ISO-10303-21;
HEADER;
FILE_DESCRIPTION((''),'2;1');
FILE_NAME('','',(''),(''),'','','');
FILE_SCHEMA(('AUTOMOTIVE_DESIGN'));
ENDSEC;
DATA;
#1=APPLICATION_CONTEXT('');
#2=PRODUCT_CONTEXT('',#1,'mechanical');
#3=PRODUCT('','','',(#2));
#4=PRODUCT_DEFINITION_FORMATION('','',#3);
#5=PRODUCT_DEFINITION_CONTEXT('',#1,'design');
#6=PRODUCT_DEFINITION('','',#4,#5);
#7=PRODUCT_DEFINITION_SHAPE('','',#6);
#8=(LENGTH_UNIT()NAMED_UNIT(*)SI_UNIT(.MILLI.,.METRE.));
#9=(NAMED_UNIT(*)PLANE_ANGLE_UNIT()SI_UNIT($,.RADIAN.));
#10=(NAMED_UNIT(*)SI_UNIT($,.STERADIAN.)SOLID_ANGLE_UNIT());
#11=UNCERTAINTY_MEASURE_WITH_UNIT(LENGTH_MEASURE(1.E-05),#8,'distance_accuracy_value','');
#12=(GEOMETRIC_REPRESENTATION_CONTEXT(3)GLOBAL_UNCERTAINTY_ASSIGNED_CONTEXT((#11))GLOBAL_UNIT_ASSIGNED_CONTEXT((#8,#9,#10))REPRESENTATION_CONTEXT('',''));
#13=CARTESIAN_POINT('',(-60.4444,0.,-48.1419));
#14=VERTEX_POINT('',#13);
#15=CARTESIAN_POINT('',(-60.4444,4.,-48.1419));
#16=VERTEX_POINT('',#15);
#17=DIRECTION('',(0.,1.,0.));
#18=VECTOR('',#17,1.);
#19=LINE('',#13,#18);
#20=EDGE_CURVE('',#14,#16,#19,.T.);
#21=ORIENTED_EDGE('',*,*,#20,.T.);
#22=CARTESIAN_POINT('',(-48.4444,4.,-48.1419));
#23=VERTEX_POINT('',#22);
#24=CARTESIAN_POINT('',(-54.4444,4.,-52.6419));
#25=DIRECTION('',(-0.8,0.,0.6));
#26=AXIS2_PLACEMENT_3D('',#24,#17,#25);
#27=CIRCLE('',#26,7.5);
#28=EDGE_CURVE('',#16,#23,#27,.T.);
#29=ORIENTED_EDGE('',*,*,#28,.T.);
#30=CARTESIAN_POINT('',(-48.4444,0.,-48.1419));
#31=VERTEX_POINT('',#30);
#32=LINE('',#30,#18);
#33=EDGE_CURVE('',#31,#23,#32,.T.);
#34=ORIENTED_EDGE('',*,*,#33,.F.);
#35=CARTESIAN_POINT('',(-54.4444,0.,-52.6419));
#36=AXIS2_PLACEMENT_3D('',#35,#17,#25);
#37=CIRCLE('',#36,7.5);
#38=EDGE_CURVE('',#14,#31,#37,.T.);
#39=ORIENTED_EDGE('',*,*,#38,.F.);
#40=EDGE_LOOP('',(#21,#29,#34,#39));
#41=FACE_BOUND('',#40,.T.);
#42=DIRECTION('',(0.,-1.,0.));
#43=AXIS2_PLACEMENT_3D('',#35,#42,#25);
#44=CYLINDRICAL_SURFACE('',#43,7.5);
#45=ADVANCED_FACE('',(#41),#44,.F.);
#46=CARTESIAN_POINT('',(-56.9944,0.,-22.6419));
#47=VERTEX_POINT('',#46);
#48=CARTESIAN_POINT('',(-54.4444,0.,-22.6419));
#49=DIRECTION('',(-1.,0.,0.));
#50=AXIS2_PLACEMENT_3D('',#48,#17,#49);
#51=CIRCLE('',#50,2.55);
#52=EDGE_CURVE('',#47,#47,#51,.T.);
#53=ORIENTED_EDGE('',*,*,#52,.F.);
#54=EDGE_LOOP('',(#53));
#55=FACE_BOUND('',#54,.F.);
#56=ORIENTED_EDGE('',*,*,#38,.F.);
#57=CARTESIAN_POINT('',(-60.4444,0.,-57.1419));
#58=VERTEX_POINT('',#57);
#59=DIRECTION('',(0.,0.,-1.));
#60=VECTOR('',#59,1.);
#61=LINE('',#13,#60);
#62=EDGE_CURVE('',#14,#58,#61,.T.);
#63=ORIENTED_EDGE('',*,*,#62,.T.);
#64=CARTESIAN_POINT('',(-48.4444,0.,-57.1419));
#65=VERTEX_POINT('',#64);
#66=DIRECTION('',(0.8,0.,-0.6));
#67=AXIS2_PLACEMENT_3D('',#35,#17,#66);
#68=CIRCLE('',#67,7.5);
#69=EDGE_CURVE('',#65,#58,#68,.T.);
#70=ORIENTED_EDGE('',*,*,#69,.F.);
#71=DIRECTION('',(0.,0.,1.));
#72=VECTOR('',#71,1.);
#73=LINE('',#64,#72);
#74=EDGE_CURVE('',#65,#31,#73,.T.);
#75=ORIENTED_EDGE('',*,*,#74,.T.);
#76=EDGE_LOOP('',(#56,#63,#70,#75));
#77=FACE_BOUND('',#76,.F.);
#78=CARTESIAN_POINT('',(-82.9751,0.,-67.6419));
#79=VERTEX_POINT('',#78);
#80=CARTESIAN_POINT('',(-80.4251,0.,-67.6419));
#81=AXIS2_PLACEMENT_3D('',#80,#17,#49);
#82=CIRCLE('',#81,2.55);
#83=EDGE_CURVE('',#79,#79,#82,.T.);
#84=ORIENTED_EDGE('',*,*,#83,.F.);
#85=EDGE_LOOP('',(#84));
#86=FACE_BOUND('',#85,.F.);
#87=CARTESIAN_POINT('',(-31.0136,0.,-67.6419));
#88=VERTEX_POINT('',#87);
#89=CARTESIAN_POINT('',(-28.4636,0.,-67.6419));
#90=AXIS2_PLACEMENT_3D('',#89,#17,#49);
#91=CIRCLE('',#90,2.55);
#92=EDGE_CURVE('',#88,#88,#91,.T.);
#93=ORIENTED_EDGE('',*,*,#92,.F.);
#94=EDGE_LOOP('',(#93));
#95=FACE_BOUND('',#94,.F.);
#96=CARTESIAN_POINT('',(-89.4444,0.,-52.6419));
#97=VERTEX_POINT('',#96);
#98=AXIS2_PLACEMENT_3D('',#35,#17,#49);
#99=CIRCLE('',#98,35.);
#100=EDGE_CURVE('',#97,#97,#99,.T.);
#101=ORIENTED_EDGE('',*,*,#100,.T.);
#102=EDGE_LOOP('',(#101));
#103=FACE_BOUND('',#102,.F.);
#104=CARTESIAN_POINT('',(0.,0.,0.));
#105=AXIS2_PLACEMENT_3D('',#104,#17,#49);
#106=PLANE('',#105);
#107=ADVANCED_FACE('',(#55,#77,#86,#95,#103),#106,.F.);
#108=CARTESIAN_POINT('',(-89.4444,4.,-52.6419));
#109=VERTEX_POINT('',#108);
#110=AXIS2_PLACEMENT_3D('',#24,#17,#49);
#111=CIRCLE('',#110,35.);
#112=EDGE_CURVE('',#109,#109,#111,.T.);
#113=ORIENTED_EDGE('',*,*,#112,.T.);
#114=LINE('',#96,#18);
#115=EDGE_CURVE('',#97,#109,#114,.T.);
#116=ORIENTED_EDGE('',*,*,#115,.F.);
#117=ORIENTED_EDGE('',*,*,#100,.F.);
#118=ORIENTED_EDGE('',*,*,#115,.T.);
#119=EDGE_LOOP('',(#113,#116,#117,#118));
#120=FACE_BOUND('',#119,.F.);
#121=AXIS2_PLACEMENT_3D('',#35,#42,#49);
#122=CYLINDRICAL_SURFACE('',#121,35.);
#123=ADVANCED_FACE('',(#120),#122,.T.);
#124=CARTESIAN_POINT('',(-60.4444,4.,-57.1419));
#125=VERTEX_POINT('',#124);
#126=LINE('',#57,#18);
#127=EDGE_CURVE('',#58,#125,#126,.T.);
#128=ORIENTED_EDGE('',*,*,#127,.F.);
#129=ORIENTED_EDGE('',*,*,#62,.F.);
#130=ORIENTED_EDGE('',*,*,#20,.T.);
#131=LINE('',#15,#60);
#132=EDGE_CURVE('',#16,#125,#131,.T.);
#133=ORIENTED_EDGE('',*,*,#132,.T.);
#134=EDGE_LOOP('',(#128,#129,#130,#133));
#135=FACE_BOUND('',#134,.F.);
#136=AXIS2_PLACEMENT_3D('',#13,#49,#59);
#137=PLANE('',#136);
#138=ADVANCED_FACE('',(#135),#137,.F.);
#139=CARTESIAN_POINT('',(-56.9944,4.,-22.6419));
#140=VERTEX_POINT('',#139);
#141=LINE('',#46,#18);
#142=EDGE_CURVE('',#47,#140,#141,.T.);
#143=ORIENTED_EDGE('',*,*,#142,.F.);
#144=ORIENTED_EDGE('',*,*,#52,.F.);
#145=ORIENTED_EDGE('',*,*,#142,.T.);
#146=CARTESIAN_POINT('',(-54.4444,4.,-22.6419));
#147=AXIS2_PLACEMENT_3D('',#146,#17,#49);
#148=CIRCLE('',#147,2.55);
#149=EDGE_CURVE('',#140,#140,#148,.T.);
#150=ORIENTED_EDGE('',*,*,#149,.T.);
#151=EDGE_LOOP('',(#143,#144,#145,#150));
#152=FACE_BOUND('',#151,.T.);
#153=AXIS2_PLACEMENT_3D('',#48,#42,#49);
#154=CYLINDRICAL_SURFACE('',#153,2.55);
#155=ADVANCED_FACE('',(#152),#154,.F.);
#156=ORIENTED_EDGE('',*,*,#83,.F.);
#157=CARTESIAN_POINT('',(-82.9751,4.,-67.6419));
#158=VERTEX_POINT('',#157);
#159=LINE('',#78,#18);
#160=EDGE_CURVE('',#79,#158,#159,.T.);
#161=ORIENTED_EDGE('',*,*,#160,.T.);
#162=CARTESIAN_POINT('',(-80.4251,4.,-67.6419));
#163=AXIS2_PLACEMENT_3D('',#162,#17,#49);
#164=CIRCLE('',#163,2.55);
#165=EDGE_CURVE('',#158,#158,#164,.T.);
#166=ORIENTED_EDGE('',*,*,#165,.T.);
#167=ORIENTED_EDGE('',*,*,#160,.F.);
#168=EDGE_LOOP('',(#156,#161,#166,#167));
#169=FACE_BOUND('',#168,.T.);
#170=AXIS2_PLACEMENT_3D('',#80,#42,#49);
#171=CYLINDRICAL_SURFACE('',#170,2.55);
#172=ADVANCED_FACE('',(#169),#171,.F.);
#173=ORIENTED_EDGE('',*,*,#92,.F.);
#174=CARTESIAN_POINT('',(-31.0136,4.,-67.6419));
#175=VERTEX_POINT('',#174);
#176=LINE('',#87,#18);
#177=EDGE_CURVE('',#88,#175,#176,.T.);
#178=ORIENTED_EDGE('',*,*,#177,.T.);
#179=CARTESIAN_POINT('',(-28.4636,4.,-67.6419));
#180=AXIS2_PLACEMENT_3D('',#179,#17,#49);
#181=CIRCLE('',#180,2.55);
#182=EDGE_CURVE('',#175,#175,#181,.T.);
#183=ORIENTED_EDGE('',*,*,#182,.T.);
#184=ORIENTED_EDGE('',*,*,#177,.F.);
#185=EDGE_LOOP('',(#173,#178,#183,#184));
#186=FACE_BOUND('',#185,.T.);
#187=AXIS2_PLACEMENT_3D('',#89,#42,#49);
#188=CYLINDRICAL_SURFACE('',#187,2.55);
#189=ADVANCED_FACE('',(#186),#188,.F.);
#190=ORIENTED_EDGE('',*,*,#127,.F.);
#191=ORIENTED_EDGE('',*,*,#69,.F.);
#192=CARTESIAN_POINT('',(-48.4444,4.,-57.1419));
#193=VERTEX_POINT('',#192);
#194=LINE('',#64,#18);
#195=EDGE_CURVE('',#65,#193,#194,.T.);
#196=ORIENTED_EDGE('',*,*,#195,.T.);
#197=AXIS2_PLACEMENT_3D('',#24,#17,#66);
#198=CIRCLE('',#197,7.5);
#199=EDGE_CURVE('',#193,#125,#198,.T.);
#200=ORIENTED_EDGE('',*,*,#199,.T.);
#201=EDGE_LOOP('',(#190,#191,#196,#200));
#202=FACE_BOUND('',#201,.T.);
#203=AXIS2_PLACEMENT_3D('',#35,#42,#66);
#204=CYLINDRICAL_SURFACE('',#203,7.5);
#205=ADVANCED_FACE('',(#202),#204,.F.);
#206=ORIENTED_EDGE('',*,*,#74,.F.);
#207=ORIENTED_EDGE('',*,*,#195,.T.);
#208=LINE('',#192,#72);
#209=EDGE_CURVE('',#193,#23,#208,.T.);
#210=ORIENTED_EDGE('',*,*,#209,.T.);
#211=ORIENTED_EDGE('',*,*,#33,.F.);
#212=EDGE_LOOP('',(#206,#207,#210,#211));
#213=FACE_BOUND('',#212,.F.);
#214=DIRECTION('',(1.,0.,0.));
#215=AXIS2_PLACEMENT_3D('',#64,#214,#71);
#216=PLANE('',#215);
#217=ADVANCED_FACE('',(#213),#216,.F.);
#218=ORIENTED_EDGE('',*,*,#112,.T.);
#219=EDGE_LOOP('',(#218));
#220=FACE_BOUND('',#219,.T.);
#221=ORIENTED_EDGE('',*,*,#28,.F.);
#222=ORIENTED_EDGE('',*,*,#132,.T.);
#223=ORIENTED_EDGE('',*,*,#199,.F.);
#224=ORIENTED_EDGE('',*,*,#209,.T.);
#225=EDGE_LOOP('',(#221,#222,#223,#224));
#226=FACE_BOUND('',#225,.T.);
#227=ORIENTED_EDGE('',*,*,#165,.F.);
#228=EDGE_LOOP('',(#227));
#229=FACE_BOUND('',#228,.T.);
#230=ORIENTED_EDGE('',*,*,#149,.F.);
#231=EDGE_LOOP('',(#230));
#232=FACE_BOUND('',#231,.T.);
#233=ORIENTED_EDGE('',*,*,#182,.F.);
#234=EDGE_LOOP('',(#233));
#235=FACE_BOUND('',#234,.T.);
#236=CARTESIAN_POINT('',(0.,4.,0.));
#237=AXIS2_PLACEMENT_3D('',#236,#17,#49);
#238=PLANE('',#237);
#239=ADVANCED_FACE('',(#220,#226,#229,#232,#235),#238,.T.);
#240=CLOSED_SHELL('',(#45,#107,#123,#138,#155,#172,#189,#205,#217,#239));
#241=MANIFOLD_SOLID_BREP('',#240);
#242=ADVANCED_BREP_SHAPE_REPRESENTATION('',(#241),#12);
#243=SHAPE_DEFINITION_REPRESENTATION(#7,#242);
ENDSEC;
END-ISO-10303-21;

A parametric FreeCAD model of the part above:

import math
import FreeCAD as App
import Part
import Sketcher

V = App.Vector
Q = App.Units.Quantity

doc = App.newDocument("Part")
params = doc.addObject("Spreadsheet::Sheet", "Params")
for row, (alias, value) in enumerate([
    ("sketch1_diameter", "70 mm"),
    ("sketch1_diameter2", "5.1 mm"),
    ("sketch1_radius", "7.5 mm"),
    ("sketch1_height", "9 mm"),
    ("pad1_length", "4 mm"),
], start=1):
    params.set(f"A{row}", alias)
    params.set(f"B{row}", "=" + value)
    params.setAlias(f"B{row}", alias)

body = doc.addObject("PartDesign::Body", "Body")

sketch1 = doc.addObject("Sketcher::SketchObject", "Sketch")
body.addObject(sketch1)
sketch1.AttachmentSupport = (doc.XZ_Plane, [""])
sketch1.MapMode = "FlatFace"
sketch1.addGeometry([
    Part.Circle(V(-54.4444, -52.6419, 0), V(0, 0, 1), 35),
    Part.Circle(V(-28.4636, -67.6419, 0), V(0, 0, 1), 2.55),
    Part.ArcOfCircle(Part.Circle(V(-54.4444, -52.6419, 0), V(0, 0, 1), 7.5), math.radians(-143.130102), math.radians(-36.869898)),
    Part.LineSegment(V(-48.4444, -57.1419, 0), V(-48.4444, -48.1419, 0)),
    Part.ArcOfCircle(Part.Circle(V(-54.4444, -52.6419, 0), V(0, 0, 1), 7.5), math.radians(36.869898), math.radians(143.130102)),
    Part.LineSegment(V(-60.4444, -48.1419, 0), V(-60.4444, -57.1419, 0)),
    Part.Circle(V(-80.4251, -67.6419, 0), V(0, 0, 1), 2.55),
    Part.Circle(V(-54.4444, -22.6419, 0), V(0, 0, 1), 2.55),
], False)
sketch1.addConstraint([
    Sketcher.Constraint("Coincident", 2, 2, 3, 1),
    Sketcher.Constraint("Coincident", 3, 2, 4, 1),
    Sketcher.Constraint("Coincident", 4, 2, 5, 1),
    Sketcher.Constraint("Coincident", 5, 2, 2, 1),
    Sketcher.Constraint("Vertical", 3),
    Sketcher.Constraint("Vertical", 5),
    Sketcher.Constraint("Coincident", 2, 3, 0, 3),
    Sketcher.Constraint("Coincident", 4, 3, 0, 3),
    Sketcher.Constraint("Equal", 2, 4),
    Sketcher.Constraint("Equal", 1, 6),
    Sketcher.Constraint("Equal", 6, 7),
    Sketcher.Constraint("Horizontal", 1, 3, 6, 3),
    Sketcher.Constraint("Horizontal", 3, 2, 4, 2),
    Sketcher.Constraint("Vertical", 4, 3, 7, 3),
    Sketcher.Constraint("Diameter", 0, Q("70 mm")),
    Sketcher.Constraint("Diameter", 1, Q("5.1 mm")),
    Sketcher.Constraint("Radius", 2, Q("7.5 mm")),
    Sketcher.Constraint("DistanceY", 3, 1, 3, 2, Q("9 mm")),
    Sketcher.Constraint("DistanceY", 1, 3, 0, 3, Q("15 mm")),
    Sketcher.Constraint("DistanceY", 0, 3, 7, 3, Q("30 mm")),
    Sketcher.Constraint("DistanceY", 0, 3, -1, 1, Q("52.642 mm")),
    Sketcher.Constraint("DistanceX", 6, 3, -1, 1, Q("80.425 mm")),
    Sketcher.Constraint("DistanceX", 0, 3, -1, 1, Q("54.4444 mm")),
    Sketcher.Constraint("DistanceX", 1, 3, -1, 1, Q("28.4636 mm")),
])
sketch1.setExpression("Constraints[14]", "Params.sketch1_diameter")
sketch1.setExpression("Constraints[15]", "Params.sketch1_diameter2")
sketch1.setExpression("Constraints[16]", "Params.sketch1_radius")
sketch1.setExpression("Constraints[17]", "Params.sketch1_height")
pad1 = doc.addObject("PartDesign::Pad", "Pad")
body.addObject(pad1)
pad1.Profile = sketch1
pad1.setExpression("Length", "Params.pad1_length")
pad1.Reversed = True

doc.recompute()
